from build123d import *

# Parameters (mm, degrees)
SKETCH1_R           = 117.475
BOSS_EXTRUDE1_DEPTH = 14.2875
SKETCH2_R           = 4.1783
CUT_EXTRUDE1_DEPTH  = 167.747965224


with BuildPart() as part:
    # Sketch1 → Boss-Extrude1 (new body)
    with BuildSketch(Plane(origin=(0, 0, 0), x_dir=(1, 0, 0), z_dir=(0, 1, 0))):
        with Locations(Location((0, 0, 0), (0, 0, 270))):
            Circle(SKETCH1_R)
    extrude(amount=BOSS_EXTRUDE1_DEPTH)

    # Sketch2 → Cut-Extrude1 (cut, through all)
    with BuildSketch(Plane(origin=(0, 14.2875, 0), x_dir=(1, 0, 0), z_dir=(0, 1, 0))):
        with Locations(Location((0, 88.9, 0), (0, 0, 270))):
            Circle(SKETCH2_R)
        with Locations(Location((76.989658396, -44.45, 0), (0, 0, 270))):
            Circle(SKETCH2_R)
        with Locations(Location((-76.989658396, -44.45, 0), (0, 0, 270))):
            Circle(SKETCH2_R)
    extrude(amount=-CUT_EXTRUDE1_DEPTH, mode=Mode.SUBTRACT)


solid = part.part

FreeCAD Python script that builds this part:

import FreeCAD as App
import Part
import Sketcher
Q = App.Units.Quantity

doc = App.newDocument("Part")
body = doc.addObject("PartDesign::Body", "Body")

# Sketch on XZ plane
sketch1 = body.newObject("Sketcher::SketchObject", "Sketch")
sketch1.AttachmentSupport = (doc.getObject("XZ_Plane"), [""])
sketch1.MapMode = "FlatFace"
sketch1.addGeometry(Part.Circle(App.Vector(0, 0, 0), App.Vector(0, 0, 1), 117), False)
sketch1.addConstraint(Sketcher.Constraint("Coincident", 0, 3, -1, 1))
sketch1.addConstraint(Sketcher.Constraint("Diameter", 0, Q("9.25 in")))
pad1 = body.newObject("PartDesign::Pad", "Pad")
pad1.Profile = sketch1
pad1.Length = Q("0.5625 in")
pad1.Reversed = True

# Sketch on XZ plane
sketch2 = body.newObject("Sketcher::SketchObject", "Sketch001")
sketch2.AttachmentSupport = (doc.getObject("XZ_Plane"), [""])
sketch2.MapMode = "FlatFace"
sketch2.AttachmentOffset = App.Placement(App.Vector(0, 0, -0.5625 * 25.4), App.Rotation())
sketch2.addGeometry(Part.Circle(App.Vector(0, -88.9, 0), App.Vector(0, 0, 1), 4.2), False)
sketch2.addGeometry(Part.Circle(App.Vector(77, 44.5, 0), App.Vector(0, 0, 1), 4.2), False)
sketch2.addGeometry(Part.Circle(App.Vector(-77, 44.5, 0), App.Vector(0, 0, 1), 4.2), False)
sketch2.addConstraint(Sketcher.Constraint("Equal", 0, 1))
sketch2.addConstraint(Sketcher.Constraint("Equal", 1, 2))
sketch2.addConstraint(Sketcher.Constraint("Symmetric", 1, 3, 2, 3, -2))
sketch2.addConstraint(Sketcher.Constraint("PointOnObject", 0, 3, -2))
sketch2.addConstraint(Sketcher.Constraint("Diameter", 0, Q("0.329 in")))
sketch2.addConstraint(Sketcher.Constraint("DistanceY", 0, 3, -1, 1, Q("3.5 in")))
sketch2.addConstraint(Sketcher.Constraint("DistanceY", -1, 1, 1, 3, Q("1.75 in")))
sketch2.addConstraint(Sketcher.Constraint("DistanceX", -1, 1, 1, 3, 76.989658))
pocket1 = body.newObject("PartDesign::Pocket", "Pocket")
pocket1.Profile = sketch2
pocket1.Type = "ThroughAll"
pocket1.Reversed = True

doc.recompute()
